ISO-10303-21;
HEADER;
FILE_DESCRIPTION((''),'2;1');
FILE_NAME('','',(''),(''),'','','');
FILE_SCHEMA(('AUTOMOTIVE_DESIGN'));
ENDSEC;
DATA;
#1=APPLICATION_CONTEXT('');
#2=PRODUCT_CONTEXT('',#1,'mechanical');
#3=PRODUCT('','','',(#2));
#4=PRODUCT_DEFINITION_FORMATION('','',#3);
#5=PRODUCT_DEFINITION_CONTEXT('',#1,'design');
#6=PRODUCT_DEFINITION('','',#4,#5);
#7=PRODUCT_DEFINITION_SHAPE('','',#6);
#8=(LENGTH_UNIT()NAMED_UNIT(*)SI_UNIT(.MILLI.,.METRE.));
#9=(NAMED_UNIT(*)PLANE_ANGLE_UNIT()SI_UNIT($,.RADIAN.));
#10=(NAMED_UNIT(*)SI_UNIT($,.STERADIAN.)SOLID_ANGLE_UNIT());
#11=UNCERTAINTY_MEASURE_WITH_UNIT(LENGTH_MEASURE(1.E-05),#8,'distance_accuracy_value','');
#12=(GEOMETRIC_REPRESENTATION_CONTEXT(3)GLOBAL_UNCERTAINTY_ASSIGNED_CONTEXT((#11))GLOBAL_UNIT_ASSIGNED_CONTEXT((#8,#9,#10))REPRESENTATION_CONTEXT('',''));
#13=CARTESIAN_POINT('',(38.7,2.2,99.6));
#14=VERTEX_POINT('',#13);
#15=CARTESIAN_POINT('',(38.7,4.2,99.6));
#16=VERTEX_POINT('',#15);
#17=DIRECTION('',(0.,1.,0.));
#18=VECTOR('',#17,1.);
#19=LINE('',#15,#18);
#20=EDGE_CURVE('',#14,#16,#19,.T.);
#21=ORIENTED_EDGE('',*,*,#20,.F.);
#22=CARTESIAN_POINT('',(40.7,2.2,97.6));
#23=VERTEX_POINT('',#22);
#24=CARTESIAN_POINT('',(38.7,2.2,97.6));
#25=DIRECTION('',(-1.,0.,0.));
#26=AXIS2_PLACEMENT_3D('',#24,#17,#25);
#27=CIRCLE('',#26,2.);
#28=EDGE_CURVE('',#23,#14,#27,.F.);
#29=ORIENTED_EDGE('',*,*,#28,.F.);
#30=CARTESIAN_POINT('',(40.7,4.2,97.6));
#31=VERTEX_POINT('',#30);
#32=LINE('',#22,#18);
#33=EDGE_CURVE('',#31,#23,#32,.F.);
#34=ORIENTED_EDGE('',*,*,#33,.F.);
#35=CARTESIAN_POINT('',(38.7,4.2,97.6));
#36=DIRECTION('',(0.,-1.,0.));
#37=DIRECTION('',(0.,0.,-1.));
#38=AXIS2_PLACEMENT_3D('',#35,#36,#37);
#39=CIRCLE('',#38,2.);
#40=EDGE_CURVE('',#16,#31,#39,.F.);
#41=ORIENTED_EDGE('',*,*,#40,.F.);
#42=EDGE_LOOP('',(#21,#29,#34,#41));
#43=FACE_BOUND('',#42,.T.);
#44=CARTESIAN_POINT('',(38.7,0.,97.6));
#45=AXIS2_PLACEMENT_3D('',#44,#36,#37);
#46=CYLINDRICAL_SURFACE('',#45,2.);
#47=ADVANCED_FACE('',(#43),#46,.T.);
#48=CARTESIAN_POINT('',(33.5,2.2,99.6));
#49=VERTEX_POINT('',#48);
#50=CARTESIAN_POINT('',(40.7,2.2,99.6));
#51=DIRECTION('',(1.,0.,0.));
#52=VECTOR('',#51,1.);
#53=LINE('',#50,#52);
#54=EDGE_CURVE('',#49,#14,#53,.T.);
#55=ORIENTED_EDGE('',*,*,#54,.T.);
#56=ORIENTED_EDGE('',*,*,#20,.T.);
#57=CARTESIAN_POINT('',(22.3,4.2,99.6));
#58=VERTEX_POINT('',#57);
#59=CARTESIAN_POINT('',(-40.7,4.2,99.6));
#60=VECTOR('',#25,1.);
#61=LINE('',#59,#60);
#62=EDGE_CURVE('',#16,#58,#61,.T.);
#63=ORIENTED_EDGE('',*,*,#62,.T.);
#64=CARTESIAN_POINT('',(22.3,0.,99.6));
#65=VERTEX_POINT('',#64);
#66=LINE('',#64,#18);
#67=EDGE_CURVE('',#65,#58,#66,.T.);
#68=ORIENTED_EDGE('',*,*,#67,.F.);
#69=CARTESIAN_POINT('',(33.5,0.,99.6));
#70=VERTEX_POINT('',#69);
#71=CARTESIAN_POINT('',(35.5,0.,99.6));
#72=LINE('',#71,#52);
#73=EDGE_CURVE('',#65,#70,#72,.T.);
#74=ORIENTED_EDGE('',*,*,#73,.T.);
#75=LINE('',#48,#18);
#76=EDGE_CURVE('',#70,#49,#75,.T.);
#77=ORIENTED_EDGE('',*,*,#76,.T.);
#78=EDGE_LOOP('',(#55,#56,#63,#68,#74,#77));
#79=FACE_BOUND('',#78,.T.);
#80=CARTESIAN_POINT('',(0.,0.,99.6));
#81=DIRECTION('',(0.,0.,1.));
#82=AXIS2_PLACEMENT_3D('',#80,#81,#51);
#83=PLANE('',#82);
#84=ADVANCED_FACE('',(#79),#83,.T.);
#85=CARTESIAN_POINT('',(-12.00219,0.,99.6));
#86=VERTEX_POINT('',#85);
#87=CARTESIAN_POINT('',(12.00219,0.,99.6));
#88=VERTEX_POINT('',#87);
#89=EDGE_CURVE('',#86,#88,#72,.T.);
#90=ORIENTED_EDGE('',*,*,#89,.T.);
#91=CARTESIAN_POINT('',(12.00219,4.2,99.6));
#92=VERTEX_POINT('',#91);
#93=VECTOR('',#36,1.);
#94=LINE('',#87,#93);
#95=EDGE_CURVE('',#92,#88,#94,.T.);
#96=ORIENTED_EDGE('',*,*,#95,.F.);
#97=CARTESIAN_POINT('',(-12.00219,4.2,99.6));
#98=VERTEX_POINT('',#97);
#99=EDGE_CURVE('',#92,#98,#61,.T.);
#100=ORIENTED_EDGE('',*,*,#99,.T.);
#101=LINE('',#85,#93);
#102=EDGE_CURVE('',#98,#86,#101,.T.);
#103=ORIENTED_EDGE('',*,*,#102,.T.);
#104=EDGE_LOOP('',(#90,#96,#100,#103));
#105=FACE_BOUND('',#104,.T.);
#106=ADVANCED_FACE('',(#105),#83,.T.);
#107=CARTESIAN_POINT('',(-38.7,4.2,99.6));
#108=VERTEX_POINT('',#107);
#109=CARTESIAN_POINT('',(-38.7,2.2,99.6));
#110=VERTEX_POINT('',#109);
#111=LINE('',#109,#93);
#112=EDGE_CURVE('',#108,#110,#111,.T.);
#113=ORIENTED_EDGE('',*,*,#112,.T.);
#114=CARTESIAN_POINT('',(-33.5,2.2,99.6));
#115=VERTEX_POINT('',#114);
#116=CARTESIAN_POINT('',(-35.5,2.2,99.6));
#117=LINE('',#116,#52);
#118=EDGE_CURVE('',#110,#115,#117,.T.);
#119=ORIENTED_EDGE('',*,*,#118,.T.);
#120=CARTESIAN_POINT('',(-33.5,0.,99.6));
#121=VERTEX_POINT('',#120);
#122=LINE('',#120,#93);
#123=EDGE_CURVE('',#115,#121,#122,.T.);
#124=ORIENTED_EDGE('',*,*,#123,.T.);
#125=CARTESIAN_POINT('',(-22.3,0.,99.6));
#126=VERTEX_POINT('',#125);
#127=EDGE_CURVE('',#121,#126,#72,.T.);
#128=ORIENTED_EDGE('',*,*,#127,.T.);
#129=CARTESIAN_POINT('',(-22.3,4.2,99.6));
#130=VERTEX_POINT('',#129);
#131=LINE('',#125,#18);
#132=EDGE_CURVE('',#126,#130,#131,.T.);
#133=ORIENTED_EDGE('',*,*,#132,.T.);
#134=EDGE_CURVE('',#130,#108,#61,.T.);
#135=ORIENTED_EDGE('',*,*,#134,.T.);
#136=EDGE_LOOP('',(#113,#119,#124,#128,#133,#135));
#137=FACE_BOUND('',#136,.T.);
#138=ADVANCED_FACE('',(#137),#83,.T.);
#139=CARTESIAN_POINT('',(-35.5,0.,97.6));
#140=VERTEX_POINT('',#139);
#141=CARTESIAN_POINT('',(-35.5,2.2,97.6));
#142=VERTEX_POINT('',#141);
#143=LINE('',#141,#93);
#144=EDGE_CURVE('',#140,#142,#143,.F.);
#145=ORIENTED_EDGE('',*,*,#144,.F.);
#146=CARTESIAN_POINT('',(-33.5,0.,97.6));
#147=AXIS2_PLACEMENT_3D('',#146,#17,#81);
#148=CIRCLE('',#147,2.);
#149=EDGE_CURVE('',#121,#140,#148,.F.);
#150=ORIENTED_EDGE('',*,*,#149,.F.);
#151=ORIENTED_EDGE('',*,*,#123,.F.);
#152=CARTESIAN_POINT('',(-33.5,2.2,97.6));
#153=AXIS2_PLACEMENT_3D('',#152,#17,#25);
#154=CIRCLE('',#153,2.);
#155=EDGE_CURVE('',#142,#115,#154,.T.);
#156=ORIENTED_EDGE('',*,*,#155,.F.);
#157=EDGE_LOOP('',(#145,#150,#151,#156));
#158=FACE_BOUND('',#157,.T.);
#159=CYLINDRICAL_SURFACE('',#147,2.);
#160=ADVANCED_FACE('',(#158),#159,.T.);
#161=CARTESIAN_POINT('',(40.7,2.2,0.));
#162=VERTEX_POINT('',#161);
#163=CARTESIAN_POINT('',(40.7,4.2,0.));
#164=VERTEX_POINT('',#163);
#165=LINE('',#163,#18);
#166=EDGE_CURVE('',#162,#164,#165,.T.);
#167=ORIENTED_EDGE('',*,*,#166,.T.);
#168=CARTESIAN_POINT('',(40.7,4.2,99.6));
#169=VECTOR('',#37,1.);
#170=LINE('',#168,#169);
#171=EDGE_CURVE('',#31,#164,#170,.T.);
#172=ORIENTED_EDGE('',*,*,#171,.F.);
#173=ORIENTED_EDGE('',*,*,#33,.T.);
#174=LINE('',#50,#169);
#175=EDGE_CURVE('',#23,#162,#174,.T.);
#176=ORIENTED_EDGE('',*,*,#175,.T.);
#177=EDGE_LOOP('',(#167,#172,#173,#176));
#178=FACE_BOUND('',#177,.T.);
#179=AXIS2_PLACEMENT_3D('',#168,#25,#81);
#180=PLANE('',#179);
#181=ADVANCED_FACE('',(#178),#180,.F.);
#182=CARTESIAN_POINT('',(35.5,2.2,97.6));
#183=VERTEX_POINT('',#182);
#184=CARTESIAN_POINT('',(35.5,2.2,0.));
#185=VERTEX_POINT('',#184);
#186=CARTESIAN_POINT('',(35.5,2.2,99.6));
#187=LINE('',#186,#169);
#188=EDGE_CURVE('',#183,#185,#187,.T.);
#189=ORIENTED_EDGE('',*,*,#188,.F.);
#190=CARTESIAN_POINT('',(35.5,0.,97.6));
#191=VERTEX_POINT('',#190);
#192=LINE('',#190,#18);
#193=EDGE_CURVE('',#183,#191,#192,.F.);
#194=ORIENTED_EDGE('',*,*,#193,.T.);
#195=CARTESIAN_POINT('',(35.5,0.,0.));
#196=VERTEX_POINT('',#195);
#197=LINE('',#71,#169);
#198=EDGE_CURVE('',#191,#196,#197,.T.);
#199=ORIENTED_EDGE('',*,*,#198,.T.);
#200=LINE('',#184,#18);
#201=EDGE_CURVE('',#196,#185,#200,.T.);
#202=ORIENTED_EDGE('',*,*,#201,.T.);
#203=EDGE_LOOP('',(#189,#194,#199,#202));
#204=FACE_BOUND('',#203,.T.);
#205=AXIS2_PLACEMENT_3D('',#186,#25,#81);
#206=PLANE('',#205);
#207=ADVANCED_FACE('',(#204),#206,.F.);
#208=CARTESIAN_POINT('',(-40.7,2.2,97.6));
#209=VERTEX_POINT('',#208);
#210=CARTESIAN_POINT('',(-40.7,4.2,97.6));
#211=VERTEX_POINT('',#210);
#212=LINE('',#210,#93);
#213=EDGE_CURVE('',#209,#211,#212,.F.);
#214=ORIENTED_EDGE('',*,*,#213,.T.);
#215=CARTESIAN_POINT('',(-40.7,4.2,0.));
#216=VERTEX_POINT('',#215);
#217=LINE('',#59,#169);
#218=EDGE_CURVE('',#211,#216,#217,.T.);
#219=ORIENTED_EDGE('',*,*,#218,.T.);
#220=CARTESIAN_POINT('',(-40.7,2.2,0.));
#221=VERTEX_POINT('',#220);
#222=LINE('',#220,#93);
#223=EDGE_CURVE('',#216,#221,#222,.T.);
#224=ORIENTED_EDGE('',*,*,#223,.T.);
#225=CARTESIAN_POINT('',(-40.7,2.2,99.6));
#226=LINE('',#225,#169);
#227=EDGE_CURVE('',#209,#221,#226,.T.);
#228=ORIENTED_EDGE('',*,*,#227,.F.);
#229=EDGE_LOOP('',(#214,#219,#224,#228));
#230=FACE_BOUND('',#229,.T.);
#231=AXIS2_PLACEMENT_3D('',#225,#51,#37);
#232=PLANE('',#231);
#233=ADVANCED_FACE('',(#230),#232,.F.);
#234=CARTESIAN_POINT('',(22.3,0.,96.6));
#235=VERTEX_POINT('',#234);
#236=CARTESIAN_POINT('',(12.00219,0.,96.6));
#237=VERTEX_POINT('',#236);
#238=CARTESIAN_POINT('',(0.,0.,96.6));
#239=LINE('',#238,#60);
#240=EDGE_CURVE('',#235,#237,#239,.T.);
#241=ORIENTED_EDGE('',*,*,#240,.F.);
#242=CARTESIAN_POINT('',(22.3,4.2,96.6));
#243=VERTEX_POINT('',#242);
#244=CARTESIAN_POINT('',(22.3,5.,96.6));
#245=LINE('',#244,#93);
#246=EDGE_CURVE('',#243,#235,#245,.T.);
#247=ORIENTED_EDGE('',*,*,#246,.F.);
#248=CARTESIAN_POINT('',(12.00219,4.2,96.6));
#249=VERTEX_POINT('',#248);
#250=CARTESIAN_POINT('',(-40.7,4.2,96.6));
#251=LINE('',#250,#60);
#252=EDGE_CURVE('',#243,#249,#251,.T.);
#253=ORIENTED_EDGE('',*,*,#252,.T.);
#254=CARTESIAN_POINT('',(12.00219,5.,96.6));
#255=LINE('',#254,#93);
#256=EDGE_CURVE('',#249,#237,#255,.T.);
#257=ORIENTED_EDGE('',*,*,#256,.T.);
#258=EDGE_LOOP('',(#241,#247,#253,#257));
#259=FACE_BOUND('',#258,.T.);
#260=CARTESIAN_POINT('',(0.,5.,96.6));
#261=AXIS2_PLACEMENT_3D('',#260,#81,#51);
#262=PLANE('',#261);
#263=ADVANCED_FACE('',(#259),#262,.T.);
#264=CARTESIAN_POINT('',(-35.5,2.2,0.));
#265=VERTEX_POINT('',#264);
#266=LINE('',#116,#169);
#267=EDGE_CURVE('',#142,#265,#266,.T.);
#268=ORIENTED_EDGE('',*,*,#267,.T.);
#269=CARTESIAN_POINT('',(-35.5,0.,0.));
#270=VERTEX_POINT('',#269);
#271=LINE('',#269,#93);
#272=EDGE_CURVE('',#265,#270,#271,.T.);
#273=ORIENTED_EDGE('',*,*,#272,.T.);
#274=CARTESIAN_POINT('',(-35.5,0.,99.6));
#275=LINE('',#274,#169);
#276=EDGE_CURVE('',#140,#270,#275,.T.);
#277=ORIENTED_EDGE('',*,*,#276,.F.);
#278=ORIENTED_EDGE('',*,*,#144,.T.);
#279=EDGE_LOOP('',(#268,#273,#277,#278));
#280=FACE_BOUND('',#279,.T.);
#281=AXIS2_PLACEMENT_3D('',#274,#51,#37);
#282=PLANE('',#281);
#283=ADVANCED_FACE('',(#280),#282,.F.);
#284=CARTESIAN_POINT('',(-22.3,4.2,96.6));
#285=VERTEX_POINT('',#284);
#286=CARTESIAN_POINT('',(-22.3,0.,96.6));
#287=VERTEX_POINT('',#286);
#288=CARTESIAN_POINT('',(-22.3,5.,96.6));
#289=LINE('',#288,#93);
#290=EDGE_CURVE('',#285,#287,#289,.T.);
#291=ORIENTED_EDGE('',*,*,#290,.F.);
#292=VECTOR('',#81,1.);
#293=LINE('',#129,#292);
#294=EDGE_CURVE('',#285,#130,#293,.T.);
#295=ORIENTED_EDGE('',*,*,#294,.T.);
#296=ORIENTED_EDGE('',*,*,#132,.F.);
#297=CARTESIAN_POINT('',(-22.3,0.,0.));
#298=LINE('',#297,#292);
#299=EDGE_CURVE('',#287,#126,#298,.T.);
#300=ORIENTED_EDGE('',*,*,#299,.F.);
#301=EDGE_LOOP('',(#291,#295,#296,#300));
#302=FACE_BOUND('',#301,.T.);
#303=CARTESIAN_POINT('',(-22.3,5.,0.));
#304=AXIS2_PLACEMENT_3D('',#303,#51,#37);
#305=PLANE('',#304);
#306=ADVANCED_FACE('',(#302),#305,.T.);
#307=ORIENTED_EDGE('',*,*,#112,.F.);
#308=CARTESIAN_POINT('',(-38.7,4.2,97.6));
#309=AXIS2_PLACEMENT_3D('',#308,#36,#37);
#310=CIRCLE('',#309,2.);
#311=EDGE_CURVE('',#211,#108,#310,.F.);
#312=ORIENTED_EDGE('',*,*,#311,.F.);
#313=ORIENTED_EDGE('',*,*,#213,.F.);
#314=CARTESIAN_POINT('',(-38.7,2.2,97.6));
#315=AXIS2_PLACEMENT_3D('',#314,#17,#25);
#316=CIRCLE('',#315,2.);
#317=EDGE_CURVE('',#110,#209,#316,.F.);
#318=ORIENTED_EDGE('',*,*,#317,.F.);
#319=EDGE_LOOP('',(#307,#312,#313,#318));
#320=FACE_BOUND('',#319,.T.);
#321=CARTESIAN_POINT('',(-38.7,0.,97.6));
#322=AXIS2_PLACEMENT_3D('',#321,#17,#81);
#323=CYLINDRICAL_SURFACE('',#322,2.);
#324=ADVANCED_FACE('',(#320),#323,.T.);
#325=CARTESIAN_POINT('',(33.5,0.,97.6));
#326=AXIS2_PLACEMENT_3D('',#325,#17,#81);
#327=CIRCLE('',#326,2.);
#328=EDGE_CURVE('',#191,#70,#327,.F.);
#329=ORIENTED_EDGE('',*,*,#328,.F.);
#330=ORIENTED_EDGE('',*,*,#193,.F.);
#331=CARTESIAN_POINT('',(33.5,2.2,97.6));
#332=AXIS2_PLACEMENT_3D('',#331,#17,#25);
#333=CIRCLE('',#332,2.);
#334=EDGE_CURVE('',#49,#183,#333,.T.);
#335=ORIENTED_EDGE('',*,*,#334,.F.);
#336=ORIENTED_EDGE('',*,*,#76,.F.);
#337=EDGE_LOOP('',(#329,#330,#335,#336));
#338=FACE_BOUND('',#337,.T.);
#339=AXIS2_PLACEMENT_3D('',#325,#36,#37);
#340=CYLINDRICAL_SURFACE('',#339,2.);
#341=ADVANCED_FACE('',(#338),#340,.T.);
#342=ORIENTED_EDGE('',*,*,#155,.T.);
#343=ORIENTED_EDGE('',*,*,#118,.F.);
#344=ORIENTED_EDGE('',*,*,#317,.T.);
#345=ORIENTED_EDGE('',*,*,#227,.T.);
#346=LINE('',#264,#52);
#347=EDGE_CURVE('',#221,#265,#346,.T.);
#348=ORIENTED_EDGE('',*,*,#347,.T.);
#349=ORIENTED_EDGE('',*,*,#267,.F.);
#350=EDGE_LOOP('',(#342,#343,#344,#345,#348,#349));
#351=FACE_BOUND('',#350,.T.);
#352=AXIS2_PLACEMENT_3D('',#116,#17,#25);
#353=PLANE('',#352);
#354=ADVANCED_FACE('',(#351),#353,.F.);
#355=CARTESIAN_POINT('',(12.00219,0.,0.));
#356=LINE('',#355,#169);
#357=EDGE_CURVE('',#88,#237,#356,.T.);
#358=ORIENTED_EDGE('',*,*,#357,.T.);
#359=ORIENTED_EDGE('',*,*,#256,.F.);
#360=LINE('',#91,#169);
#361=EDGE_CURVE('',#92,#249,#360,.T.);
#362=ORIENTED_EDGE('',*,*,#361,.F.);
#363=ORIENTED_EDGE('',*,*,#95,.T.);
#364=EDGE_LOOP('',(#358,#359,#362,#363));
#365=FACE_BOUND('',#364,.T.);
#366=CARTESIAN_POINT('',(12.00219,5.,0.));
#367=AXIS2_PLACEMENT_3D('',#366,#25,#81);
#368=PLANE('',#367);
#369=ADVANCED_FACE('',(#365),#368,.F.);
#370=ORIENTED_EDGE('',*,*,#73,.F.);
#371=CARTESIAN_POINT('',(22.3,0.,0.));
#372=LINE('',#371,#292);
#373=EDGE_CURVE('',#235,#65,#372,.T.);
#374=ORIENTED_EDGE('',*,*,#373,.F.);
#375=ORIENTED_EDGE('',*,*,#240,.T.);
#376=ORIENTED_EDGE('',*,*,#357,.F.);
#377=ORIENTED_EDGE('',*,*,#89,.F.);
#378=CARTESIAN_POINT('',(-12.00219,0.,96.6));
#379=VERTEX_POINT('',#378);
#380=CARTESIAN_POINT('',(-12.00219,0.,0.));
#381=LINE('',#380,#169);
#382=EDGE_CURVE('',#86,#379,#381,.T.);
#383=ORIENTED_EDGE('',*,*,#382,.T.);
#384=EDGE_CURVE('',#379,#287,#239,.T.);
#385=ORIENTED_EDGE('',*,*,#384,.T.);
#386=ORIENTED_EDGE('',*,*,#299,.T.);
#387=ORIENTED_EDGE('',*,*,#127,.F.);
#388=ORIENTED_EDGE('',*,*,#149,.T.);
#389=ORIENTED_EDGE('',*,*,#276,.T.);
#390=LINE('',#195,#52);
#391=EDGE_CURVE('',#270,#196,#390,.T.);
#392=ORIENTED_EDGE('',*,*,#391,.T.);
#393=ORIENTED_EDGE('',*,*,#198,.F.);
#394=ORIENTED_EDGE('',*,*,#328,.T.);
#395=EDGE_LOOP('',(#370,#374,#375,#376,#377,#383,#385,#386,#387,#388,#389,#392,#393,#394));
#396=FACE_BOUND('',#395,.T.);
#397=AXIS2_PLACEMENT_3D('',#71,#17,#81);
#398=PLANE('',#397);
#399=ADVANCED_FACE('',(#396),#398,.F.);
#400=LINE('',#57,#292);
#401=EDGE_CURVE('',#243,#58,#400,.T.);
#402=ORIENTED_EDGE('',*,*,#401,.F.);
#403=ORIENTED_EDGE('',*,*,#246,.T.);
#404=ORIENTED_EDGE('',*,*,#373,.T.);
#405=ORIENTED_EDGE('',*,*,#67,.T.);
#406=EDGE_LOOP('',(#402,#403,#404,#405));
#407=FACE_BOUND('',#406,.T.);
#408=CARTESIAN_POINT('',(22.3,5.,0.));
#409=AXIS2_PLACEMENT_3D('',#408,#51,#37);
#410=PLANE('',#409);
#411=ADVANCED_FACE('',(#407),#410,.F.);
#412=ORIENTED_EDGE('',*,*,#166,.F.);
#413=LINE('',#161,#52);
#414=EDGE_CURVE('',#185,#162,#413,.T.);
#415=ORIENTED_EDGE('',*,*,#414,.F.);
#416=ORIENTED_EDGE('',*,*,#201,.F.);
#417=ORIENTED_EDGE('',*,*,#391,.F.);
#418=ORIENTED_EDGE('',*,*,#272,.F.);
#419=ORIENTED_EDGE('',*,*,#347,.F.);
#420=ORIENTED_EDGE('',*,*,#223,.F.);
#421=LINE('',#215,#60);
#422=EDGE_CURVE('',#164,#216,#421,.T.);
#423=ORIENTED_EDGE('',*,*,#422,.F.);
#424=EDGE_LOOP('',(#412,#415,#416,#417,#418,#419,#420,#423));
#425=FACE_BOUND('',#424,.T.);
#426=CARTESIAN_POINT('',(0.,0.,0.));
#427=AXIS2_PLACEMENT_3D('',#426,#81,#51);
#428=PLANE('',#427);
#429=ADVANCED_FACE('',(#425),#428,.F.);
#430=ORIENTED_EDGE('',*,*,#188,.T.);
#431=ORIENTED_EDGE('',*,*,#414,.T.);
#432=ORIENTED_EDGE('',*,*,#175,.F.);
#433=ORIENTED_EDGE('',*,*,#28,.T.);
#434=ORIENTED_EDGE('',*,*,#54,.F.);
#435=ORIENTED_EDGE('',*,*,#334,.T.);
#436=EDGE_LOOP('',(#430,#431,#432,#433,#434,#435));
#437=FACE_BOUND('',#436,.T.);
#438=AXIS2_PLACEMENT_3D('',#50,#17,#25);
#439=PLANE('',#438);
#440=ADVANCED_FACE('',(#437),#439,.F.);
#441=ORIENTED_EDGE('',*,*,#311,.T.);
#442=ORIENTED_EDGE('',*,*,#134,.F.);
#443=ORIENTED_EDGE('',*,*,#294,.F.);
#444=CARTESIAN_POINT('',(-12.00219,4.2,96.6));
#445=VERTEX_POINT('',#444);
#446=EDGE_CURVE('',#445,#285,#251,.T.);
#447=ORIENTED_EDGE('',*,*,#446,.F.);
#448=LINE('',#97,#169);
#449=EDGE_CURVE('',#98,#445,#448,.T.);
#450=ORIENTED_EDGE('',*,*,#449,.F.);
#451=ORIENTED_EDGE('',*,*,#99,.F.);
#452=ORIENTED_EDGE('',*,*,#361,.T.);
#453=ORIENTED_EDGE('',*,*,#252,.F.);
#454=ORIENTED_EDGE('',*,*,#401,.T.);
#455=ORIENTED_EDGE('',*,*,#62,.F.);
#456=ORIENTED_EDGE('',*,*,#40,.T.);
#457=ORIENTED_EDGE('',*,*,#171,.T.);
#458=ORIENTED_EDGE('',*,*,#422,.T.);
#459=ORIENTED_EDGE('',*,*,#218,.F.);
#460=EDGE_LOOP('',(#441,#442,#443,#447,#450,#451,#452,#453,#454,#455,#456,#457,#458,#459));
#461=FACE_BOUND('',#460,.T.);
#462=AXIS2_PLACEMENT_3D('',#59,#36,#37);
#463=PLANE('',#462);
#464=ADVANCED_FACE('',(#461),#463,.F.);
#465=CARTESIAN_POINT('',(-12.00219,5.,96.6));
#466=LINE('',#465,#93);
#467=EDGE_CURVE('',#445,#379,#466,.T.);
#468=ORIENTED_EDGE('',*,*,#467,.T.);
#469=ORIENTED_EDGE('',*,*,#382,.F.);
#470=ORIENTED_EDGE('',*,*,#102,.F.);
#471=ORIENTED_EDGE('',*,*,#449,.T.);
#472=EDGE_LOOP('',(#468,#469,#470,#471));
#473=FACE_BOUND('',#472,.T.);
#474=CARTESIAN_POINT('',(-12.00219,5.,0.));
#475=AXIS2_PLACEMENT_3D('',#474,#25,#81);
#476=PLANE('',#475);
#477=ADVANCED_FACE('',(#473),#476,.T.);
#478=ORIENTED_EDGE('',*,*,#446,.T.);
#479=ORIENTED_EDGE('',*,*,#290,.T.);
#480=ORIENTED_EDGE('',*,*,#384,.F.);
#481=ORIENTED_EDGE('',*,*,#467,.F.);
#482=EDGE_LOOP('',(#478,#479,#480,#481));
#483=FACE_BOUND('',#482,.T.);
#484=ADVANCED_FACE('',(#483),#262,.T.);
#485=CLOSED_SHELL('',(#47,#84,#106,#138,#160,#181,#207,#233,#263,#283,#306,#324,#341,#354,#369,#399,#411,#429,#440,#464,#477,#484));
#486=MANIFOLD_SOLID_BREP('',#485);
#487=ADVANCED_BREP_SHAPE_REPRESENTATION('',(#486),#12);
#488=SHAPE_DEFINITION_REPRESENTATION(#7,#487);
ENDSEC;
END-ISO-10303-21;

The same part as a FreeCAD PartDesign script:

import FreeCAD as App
import Part
import Sketcher

V = App.Vector


def edges_at(feature, points):
    """Names of the edges that pass closest to the given points."""
    edges = feature.Shape.Edges
    near = lambda p: min(range(len(edges)), key=lambda i: edges[i].distToShape(Part.Vertex(*p))[0])
    return sorted({f"Edge{near(p) + 1}" for p in points})


def add_polygon(sketch, points):
    """Adds a closed chain of lines whose ends are joined by coincident constraints."""
    first, n = sketch.GeometryCount, len(points)
    for a, b in zip(points, points[1:] + points[:1]):
        sketch.addGeometry(Part.LineSegment(App.Vector(*a, 0), App.Vector(*b, 0)), False)
    for i in range(n):
        sketch.addConstraint(Sketcher.Constraint("Coincident", first + i, 2, first + (i + 1) % n, 1))

doc = App.newDocument("Part")
body = doc.addObject("PartDesign::Body", "Body")

# Sketch on XY plane
sketch1 = body.newObject("Sketcher::SketchObject", "Sketch")
sketch1.AttachmentSupport = (doc.getObject("XY_Plane"), [""])
sketch1.MapMode = "FlatFace"
add_polygon(sketch1, [(-35.5, 0), (35.5, 0), (35.5, 2.2), (40.7, 2.2), (40.7, 4.2), (-40.7, 4.2), (-40.7, 2.2), (-35.5, 2.2)])  # lines 0-7
sketch1.addConstraint([
    Sketcher.Constraint("Horizontal", 0),
    Sketcher.Constraint("Vertical", 1),
    Sketcher.Constraint("Horizontal", 2),
    Sketcher.Constraint("Vertical", 3),
    Sketcher.Constraint("Horizontal", 4),
    Sketcher.Constraint("Vertical", 5),
    Sketcher.Constraint("Horizontal", 6),
    Sketcher.Constraint("Vertical", 7),
    Sketcher.Constraint("Symmetric", 0, 2, 7, 2, -1, 1),
    Sketcher.Constraint("Symmetric", 2, 2, 5, 2, -2),
    Sketcher.Constraint("DistanceX", 0, 1, 0, 2, 71.0),
    Sketcher.Constraint("DistanceY", 3, 1, 3, 2, 2.0),
    Sketcher.Constraint("DistanceX", 2, 1, 2, 2, 5.2),
    Sketcher.Constraint("DistanceY", 1, 1, 1, 2, 2.2),
])
pad1 = body.newObject("PartDesign::Pad", "Pad")
pad1.Profile = sketch1
pad1.Length = 99.6
doc.recompute()

fillet = body.newObject("PartDesign::Fillet", "Fillet")
fillet.Base = (pad1, edges_at(pad1, [(40.7, 3.2, 99.6), (-40.7, 3.2, 99.6)]))
fillet.Radius = 2

# Sketch on XZ plane
sketch2 = body.newObject("Sketcher::SketchObject", "Sketch001")
sketch2.AttachmentSupport = (doc.getObject("XZ_Plane"), [""])
sketch2.MapMode = "FlatFace"
add_polygon(sketch2, [(-12, 96.6), (-12, 99.6), (-22.3, 99.6), (-22.3, 96.6)])  # lines 0-3
add_polygon(sketch2, [(22.3, 96.6), (22.3, 99.6), (12, 99.6), (12, 96.6)])  # lines 4-7
sketch2.addConstraint([
    Sketcher.Constraint("Vertical", 0),
    Sketcher.Constraint("Horizontal", 1),
    Sketcher.Constraint("Vertical", 2),
    Sketcher.Constraint("Horizontal", 3),
    Sketcher.Constraint("Vertical", 4),
    Sketcher.Constraint("Horizontal", 5),
    Sketcher.Constraint("Vertical", 6),
    Sketcher.Constraint("Horizontal", 7),
    Sketcher.Constraint("Symmetric", 1, 2, 4, 2, -2),
    Sketcher.Constraint("Symmetric", 3, 2, 6, 2, -2),
    Sketcher.Constraint("DistanceY", 0, 1, 0, 2, 3.0),
    Sketcher.Constraint("DistanceY", -1, 1, 0, 2, 99.6),
    Sketcher.Constraint("DistanceX", 1, 2, -1, 1, 22.3),
    Sketcher.Constraint("DistanceX", 1, 2, 1, 1, 10.29781),
])
pocket1 = body.newObject("PartDesign::Pocket", "Pocket")
pocket1.Profile = sketch2
pocket1.Length = 5
doc.recompute()

fillet2 = body.newObject("PartDesign::Fillet", "Fillet001")
fillet2.Base = (pocket1, edges_at(pocket1, [(35.5, 1.1, 99.6), (-35.5, 1.1, 99.6)]))
fillet2.Radius = 2

doc.recompute()
